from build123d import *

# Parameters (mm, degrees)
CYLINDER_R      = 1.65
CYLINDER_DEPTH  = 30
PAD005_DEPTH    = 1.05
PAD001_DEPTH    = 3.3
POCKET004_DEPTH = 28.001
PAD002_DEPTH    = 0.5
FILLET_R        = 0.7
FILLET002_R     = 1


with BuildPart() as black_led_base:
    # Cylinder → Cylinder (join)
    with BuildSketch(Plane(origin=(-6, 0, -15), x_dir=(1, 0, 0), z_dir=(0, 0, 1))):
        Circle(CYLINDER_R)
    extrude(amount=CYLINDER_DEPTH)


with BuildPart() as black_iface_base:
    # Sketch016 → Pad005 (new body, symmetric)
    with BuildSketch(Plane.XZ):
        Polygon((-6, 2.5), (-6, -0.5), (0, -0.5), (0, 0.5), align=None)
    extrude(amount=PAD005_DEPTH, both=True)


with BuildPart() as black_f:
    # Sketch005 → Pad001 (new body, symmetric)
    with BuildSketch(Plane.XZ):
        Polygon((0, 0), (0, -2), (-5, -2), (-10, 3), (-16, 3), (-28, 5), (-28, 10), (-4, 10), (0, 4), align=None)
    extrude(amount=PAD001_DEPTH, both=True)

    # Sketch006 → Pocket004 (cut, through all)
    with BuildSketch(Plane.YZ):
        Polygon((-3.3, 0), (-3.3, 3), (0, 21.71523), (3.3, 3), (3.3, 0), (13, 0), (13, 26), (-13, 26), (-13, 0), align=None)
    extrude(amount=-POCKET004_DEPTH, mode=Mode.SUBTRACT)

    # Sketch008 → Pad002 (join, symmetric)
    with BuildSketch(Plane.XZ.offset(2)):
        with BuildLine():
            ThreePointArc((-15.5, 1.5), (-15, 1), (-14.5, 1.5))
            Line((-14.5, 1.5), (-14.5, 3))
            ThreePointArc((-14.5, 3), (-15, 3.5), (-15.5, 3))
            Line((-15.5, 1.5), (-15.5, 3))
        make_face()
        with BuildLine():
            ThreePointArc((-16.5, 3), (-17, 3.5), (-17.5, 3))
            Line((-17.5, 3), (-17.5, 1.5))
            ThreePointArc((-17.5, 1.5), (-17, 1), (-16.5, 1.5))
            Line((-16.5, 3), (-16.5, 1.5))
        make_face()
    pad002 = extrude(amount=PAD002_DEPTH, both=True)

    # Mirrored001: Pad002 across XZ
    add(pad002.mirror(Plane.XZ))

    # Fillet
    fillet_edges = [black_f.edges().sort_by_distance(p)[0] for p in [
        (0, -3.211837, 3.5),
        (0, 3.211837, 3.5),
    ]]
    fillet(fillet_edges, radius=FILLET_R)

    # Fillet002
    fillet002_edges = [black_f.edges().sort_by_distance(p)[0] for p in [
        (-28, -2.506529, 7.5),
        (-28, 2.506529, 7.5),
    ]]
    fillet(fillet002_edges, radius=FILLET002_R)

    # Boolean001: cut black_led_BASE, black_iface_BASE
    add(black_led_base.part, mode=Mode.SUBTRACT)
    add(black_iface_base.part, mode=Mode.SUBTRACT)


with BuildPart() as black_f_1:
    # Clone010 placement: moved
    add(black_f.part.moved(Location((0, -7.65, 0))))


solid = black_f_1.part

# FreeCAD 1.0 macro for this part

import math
import FreeCAD as App
import Part
import Sketcher

V = App.Vector
Q = App.Units.Quantity


def edges_at(feature, points):
    """Names of the edges that pass closest to the given points."""
    edges = feature.Shape.Edges
    near = lambda p: min(range(len(edges)), key=lambda i: edges[i].distToShape(Part.Vertex(*p))[0])
    return sorted({f"Edge{near(p) + 1}" for p in points})


def add_polygon(sketch, points):
    """Adds a closed chain of lines whose ends are joined by coincident constraints."""
    first, n = sketch.GeometryCount, len(points)
    for a, b in zip(points, points[1:] + points[:1]):
        sketch.addGeometry(Part.LineSegment(App.Vector(*a, 0), App.Vector(*b, 0)), False)
    for i in range(n):
        sketch.addConstraint(Sketcher.Constraint("Coincident", first + i, 2, first + (i + 1) % n, 1))

doc = App.newDocument("Part")
params = doc.addObject("Spreadsheet::Sheet", "Params")
for row, (alias, value) in enumerate([
    ("sketch1_diameter", "3.3 mm"),
    ("pad1_length", "30 mm"),
    ("sketch2_width", "6 mm"),
    ("sketch2_height", "3 mm"),
    ("sketch2_height2", "1 mm"),
    ("pad2_length", "2.1 mm"),
    ("sketch3_width", "24 mm"),
    ("sketch3_width2", "6 mm"),
    ("sketch3_width3", "5 mm"),
    ("pad3_length", "6.6 mm"),
    ("sketch4_width", "26 mm"),
    ("sketch4_height", "3 mm"),
    ("sketch4_width2", "9.7 mm"),
    ("sketch5_radius", "0.5 mm"),
    ("sketch5_height", "1.5 mm"),
    ("pad4_length", "1 mm"),
    ("fillet_radius", "0.7 mm"),
    ("fillet2_radius", "1 mm"),
], start=1):
    params.set(f"A{row}", alias)
    params.set(f"B{row}", "=" + value)
    params.setAlias(f"B{row}", alias)

body = doc.addObject("PartDesign::Body", "Body")

# Sketch on XY plane
sketch1 = body.newObject("Sketcher::SketchObject", "Sketch")
sketch1.AttachmentSupport = (doc.getObject("XY_Plane"), [""])
sketch1.MapMode = "FlatFace"
sketch1.AttachmentOffset = App.Placement(V(0, 0, -15), App.Rotation())
sketch1.addGeometry(Part.Circle(V(-6, 0, 0), V(0, 0, 1), 1.6), False)
sketch1.addConstraint([
    Sketcher.Constraint("PointOnObject", 0, 3, -1),
    Sketcher.Constraint("Diameter", 0, 3.3),
    Sketcher.Constraint("DistanceX", 0, 3, -1, 1, 6.0),
])
sketch1.setExpression("Constraints[1]", "Params.sketch1_diameter")
pad1 = body.newObject("PartDesign::Pad", "Pad")
pad1.Profile = sketch1
pad1.setExpression("Length", "Params.pad1_length")
body2 = doc.addObject("PartDesign::Body", "Body001")

# Sketch on XZ plane
sketch2 = body2.newObject("Sketcher::SketchObject", "Sketch001")
sketch2.AttachmentSupport = (doc.getObject("XZ_Plane001"), [""])
sketch2.MapMode = "FlatFace"
add_polygon(sketch2, [(-6, 2.5), (-6, -0.5), (0, -0.5), (0, 0.5)])  # lines 0-3
sketch2.addConstraint([
    Sketcher.Constraint("Vertical", 0),
    Sketcher.Constraint("Horizontal", 1),
    Sketcher.Constraint("Vertical", 2),
    Sketcher.Constraint("Symmetric", 1, 2, 2, 2, -1, 1),
    Sketcher.Constraint("DistanceX", 1, 1, 1, 2, 6.0),
    Sketcher.Constraint("DistanceY", 0, 2, 0, 1, 3.0),
    Sketcher.Constraint("DistanceY", 2, 1, 2, 2, 1.0),
])
sketch2.setExpression("Constraints[8]", "Params.sketch2_width")
sketch2.setExpression("Constraints[9]", "Params.sketch2_height")
sketch2.setExpression("Constraints[10]", "Params.sketch2_height2")
pad2 = body2.newObject("PartDesign::Pad", "Pad001")
pad2.Profile = sketch2
pad2.setExpression("Length", "Params.pad2_length")
pad2.Midplane = True
body3 = doc.addObject("PartDesign::Body", "Body002")

# Sketch on XZ plane
sketch3 = body3.newObject("Sketcher::SketchObject", "Sketch002")
sketch3.AttachmentSupport = (doc.getObject("XZ_Plane002"), [""])
sketch3.MapMode = "FlatFace"
add_polygon(sketch3, [(0, -2), (0, 4), (-4, 10), (-28, 10), (-28, 5), (-16, 3), (-10, 3), (-5, -2)])  # lines 0-7
sketch3.addConstraint([
    Sketcher.Constraint("Vertical", 0),
    Sketcher.Constraint("Horizontal", 2),
    Sketcher.Constraint("Vertical", 3),
    Sketcher.Constraint("Horizontal", 5),
    Sketcher.Constraint("Horizontal", 7),
    Sketcher.Constraint("PointOnObject", 0, 2, -2),
    Sketcher.Constraint("Equal", 5, 0),
    Sketcher.Constraint("Equal", 7, 3),
    Sketcher.Constraint("DistanceX", 2, 2, 2, 1, 24.0),
    Sketcher.Constraint("DistanceX", 5, 1, 5, 2, 6.0),
    Sketcher.Constraint("DistanceX", 7, 1, 7, 2, 5.0),
    Sketcher.Constraint("Angle", 6, Q("-45 deg")),
    Sketcher.Constraint("DistanceY", -1, 1, 0, 2, 4.0),
    Sketcher.Constraint("DistanceX", 1, 2, -1, 1, 4.0),
    Sketcher.Constraint("DistanceY", -1, 1, 1, 2, 10.0),
    Sketcher.Constraint("DistanceX", 4, 2, -1, 1, 16.0),
])
sketch3.setExpression("Constraints[16]", "Params.sketch3_width")
sketch3.setExpression("Constraints[17]", "Params.sketch3_width2")
sketch3.setExpression("Constraints[18]", "Params.sketch3_width3")
pad3 = body3.newObject("PartDesign::Pad", "Pad002")
pad3.Profile = sketch3
pad3.setExpression("Length", "Params.pad3_length")
pad3.Midplane = True

# Sketch on YZ plane
sketch4 = body3.newObject("Sketcher::SketchObject", "Sketch003")
sketch4.AttachmentSupport = (doc.getObject("YZ_Plane002"), [""])
sketch4.MapMode = "FlatFace"
add_polygon(sketch4, [(-3.3, 0), (-3.3, 3), (0, 21.7), (3.3, 3), (3.3, 0), (13, 0), (13, 26), (-13, 26), (-13, 0)])  # lines 0-8
sketch4.addConstraint([
    Sketcher.Constraint("Vertical", 0),
    Sketcher.Constraint("Vertical", 3),
    Sketcher.Constraint("Horizontal", 4),
    Sketcher.Constraint("Vertical", 5),
    Sketcher.Constraint("Horizontal", 6),
    Sketcher.Constraint("Vertical", 7),
    Sketcher.Constraint("Horizontal", 8),
    Sketcher.Constraint("Symmetric", 4, 2, 7, 2, -1, 1),
    Sketcher.Constraint("Symmetric", 0, 2, 2, 2, -2),
    Sketcher.Constraint("PointOnObject", 1, 2, -2),
    Sketcher.Constraint("PointOnObject", 3, 2, -1),
    Sketcher.Constraint("Equal", 6, 5),
    Sketcher.Constraint("DistanceX", 6, 2, 6, 1, 26.0),
    Sketcher.Constraint("DistanceY", 0, 1, 0, 2, 3.0),
    Sketcher.Constraint("Angle", 1, Q("80 deg")),
    Sketcher.Constraint("DistanceX", 4, 1, 4, 2, 9.7),
])
sketch4.setExpression("Constraints[21]", "Params.sketch4_width")
sketch4.setExpression("Constraints[22]", "Params.sketch4_height")
sketch4.setExpression("Constraints[24]", "Params.sketch4_width2")
pocket1 = body3.newObject("PartDesign::Pocket", "Pocket")
pocket1.Profile = sketch4
pocket1.Type = "ThroughAll"

# Sketch on XZ plane
sketch5 = body3.newObject("Sketcher::SketchObject", "Sketch004")
sketch5.AttachmentSupport = (doc.getObject("XZ_Plane002"), [""])
sketch5.MapMode = "FlatFace"
sketch5.AttachmentOffset = App.Placement(V(0, 0, 2), App.Rotation())
sketch5.addGeometry([
    Part.ArcOfCircle(Part.Circle(V(-15, 1.5, 0), V(0, 0, 1), 0.5), math.radians(180), math.radians(360)),  # 0
    Part.LineSegment(V(-14.5, 1.5, 0), V(-14.5, 3, 0)),  # 1
    Part.ArcOfCircle(Part.Circle(V(-15, 3, 0), V(0, 0, 1), 0.5), math.radians(0), math.radians(180)),  # 2
    Part.LineSegment(V(-15.5, 3, 0), V(-15.5, 1.5, 0)),  # 3
    Part.ArcOfCircle(Part.Circle(V(-17, 3, 0), V(0, 0, 1), 0.5), math.radians(0), math.radians(180)),  # 4
    Part.LineSegment(V(-17.5, 3, 0), V(-17.5, 1.5, 0)),  # 5
    Part.ArcOfCircle(Part.Circle(V(-17, 1.5, 0), V(0, 0, 1), 0.5), math.radians(180), math.radians(360)),  # 6
    Part.LineSegment(V(-16.5, 1.5, 0), V(-16.5, 3, 0)),  # 7
], False)
sketch5.addConstraint([
    Sketcher.Constraint("Tangent", 0, 2, 1, 1),
    Sketcher.Constraint("Tangent", 1, 2, 2, 1),
    Sketcher.Constraint("Tangent", 2, 2, 3, 1),
    Sketcher.Constraint("Tangent", 3, 2, 0, 1),
    Sketcher.Constraint("Tangent", 4, 2, 5, 1),
    Sketcher.Constraint("Tangent", 5, 2, 6, 1),
    Sketcher.Constraint("Tangent", 6, 2, 7, 1),
    Sketcher.Constraint("Tangent", 7, 2, 4, 1),
    Sketcher.Constraint("Vertical", 1),
    Sketcher.Constraint("Vertical", 3),
    Sketcher.Constraint("Vertical", 5),
    Sketcher.Constraint("Vertical", 7),
    Sketcher.Constraint("Equal", 2, 4),
    Sketcher.Constraint("Horizontal", 2, 3, 4, 3),
    Sketcher.Constraint("Horizontal", 0, 3, 6, 3),
    Sketcher.Constraint("Radius", 0, 0.5),
    Sketcher.Constraint("DistanceY", 1, 1, 1, 2, 1.5),
    Sketcher.Constraint("DistanceX", 0, 3, -1, 1, 15.0),
    Sketcher.Constraint("DistanceY", -1, 1, 2, 3, 3.0),
    Sketcher.Constraint("DistanceX", 4, 3, -1, 1, 17.0),
])
sketch5.setExpression("Constraints[15]", "Params.sketch5_radius")
sketch5.setExpression("Constraints[16]", "Params.sketch5_height")
pad4 = body3.newObject("PartDesign::Pad", "Pad003")
pad4.Profile = sketch5
pad4.setExpression("Length", "Params.pad4_length")
pad4.Midplane = True
doc.recompute()

mirrored = body3.newObject("PartDesign::Mirrored", "Mirrored")
mirrored.Originals = [pad4]
mirrored.MirrorPlane = (doc.getObject("XZ_Plane002"), [""])
body3.Tip = mirrored
doc.recompute()

fillet = body3.newObject("PartDesign::Fillet", "Fillet")
fillet.Base = (mirrored, edges_at(mirrored, [(0, -3.212, 3.5), (0, 3.212, 3.5)]))
fillet.setExpression("Radius", "Params.fillet_radius")
doc.recompute()

fillet2 = body3.newObject("PartDesign::Fillet", "Fillet001")
fillet2.Base = (fillet, edges_at(fillet, [(-28, -2.507, 7.5), (-28, 2.507, 7.5)]))
fillet2.setExpression("Radius", "Params.fillet2_radius")
doc.recompute()

boolean = body3.newObject("PartDesign::Boolean", "Boolean")
boolean.Type = "Cut"
boolean.addObjects([body])
doc.recompute()

boolean2 = body3.newObject("PartDesign::Boolean", "Boolean001")
boolean2.Type = "Cut"
boolean2.addObjects([body2])
body4 = doc.addObject("PartDesign::Body", "Body003")
doc.recompute()

body3.Placement = App.Placement(V(0, -7.65, 0), App.Rotation(V(0, 0, 1), 0))
boolean3 = body4.newObject("PartDesign::Boolean", "Boolean002")
boolean3.Type = "Fuse"
boolean3.addObjects([body3])

doc.recompute()
